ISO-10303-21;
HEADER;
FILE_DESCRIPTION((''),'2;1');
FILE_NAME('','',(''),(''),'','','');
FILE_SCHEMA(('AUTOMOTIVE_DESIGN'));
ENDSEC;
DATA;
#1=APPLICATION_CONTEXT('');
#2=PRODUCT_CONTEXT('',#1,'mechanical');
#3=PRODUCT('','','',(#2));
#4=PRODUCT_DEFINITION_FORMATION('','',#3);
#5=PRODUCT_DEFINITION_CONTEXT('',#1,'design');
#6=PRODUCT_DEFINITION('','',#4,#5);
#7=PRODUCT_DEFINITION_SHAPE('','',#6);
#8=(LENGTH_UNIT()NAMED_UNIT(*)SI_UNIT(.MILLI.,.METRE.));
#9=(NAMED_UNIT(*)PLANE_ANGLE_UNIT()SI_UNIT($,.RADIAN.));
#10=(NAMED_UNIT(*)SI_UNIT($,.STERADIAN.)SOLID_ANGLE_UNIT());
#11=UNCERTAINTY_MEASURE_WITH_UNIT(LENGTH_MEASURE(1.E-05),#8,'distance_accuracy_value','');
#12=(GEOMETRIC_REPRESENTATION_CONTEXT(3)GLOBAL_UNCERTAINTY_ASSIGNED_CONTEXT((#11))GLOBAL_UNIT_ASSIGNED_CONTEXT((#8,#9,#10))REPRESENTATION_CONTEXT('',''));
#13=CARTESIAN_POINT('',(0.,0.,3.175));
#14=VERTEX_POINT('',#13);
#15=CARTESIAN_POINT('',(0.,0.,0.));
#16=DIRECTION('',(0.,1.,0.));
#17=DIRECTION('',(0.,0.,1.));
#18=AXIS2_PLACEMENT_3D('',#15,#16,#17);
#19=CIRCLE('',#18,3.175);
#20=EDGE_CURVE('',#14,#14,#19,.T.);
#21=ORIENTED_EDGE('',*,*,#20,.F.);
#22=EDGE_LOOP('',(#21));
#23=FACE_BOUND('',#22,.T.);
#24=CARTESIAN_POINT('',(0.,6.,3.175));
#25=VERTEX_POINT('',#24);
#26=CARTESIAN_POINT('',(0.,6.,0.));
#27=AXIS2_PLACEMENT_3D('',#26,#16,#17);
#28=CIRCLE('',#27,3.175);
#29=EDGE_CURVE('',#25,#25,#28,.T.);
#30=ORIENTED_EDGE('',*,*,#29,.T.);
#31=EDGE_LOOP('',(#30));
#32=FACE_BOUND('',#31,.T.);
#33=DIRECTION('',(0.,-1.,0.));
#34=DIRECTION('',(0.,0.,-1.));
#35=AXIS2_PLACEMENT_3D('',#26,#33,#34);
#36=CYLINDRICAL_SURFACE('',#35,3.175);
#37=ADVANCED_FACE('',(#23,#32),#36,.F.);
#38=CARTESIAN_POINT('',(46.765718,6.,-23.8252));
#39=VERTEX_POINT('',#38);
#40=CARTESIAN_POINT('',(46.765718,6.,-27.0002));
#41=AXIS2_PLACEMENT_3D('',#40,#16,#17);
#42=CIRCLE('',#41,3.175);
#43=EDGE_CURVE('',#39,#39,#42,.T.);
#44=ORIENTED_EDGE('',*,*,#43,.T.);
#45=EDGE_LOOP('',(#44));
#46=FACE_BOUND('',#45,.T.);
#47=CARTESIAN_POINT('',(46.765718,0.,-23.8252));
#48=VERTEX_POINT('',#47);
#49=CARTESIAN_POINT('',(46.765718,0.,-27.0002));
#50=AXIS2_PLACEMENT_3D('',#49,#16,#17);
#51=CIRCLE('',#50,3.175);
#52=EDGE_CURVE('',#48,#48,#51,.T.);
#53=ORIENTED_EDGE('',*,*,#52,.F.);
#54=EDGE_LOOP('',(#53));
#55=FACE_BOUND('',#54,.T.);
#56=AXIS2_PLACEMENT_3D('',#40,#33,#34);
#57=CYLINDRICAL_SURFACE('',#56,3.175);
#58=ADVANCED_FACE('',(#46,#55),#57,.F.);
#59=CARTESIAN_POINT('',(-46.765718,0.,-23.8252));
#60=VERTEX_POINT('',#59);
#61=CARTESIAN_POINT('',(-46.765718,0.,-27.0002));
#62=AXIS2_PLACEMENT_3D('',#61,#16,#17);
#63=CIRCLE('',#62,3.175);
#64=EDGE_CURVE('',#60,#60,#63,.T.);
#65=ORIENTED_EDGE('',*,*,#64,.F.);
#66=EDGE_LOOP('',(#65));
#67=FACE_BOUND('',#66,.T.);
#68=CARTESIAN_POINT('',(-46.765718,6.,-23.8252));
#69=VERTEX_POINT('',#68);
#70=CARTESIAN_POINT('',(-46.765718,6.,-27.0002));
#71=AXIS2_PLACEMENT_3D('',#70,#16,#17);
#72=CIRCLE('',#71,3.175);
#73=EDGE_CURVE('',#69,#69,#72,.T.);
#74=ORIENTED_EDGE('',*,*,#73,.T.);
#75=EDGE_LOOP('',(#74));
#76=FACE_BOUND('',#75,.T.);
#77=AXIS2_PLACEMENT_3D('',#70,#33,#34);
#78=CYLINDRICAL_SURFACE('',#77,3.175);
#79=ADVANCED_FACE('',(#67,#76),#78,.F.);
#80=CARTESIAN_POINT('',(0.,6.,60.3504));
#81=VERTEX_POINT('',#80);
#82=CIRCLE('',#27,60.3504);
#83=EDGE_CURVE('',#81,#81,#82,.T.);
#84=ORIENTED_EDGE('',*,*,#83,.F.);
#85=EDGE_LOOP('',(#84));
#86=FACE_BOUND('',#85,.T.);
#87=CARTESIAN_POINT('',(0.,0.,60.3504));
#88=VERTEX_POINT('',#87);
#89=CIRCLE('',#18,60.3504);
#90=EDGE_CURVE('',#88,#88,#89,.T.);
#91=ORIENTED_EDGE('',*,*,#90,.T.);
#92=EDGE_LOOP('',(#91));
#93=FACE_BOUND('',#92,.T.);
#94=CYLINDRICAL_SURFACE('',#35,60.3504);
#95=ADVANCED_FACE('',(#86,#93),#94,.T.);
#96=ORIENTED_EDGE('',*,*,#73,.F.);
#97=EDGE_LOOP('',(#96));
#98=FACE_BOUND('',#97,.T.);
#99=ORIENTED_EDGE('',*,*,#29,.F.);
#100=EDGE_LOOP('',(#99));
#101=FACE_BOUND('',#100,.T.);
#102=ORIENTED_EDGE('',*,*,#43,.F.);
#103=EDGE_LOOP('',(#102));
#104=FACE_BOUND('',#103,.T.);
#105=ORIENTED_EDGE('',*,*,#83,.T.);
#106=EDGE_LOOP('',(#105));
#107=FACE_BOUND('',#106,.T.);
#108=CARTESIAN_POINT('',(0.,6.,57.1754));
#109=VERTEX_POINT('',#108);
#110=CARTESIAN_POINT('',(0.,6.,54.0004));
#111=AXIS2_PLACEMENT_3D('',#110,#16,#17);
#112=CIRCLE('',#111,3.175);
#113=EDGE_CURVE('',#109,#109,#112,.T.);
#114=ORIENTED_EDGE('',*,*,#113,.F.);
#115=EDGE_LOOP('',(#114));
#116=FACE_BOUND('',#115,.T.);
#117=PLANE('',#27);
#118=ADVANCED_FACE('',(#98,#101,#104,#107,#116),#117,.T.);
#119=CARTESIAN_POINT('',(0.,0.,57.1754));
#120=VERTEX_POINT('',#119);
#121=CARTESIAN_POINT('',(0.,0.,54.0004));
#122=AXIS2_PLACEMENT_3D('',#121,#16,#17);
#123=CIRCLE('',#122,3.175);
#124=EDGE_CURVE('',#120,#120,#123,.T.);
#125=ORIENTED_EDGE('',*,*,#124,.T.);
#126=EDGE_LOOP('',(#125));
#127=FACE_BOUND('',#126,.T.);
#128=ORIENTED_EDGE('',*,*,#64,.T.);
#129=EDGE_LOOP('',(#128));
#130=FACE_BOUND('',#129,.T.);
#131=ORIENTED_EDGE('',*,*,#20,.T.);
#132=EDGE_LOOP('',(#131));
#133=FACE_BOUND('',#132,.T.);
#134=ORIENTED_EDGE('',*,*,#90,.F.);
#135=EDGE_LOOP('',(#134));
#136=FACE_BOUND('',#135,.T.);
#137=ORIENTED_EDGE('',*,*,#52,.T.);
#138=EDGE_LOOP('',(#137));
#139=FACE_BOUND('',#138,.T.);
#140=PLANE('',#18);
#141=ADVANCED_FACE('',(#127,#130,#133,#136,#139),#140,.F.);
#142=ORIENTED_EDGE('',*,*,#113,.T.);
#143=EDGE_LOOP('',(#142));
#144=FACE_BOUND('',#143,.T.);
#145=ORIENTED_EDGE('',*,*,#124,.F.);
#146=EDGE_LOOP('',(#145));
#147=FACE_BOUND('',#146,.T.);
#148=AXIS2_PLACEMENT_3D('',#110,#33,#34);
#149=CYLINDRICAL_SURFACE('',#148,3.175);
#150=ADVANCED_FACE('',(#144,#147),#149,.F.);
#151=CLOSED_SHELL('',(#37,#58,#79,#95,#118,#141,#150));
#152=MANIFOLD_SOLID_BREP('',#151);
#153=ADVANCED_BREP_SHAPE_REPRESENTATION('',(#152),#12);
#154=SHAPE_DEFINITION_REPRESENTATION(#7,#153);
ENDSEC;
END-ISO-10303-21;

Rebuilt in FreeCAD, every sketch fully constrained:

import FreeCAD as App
import Part
import Sketcher

V = App.Vector
Q = App.Units.Quantity

doc = App.newDocument("Part")
body = doc.addObject("PartDesign::Body", "Body")

# Sketch on XZ plane
sketch1 = body.newObject("Sketcher::SketchObject", "Sketch")
sketch1.AttachmentSupport = (doc.getObject("XZ_Plane"), [""])
sketch1.MapMode = "FlatFace"
sketch1.addGeometry(Part.Circle(V(0, 0, 0), V(0, 0, 1), 60.3504), False)
sketch1.addGeometry(Part.Circle(V(0, 54.0004, 0), V(0, 0, 1), 3.175), False)
sketch1.addGeometry(Part.Circle(V(-46.765718, -27.0002, 0), V(0, 0, 1), 3.175), False)
sketch1.addGeometry(Part.Circle(V(0, 0, 0), V(0, 0, 1), 3.175), False)
sketch1.addGeometry(Part.Circle(V(46.765718, -27.0002, 0), V(0, 0, 1), 3.175), False)
sketch1.addConstraint(Sketcher.Constraint("Coincident", 0, 3, -1, 1))
sketch1.addConstraint(Sketcher.Constraint("Coincident", 3, 3, -1, 1))
sketch1.addConstraint(Sketcher.Constraint("Equal", 1, 2))
sketch1.addConstraint(Sketcher.Constraint("Equal", 2, 3))
sketch1.addConstraint(Sketcher.Constraint("Equal", 3, 4))
sketch1.addConstraint(Sketcher.Constraint("Symmetric", 2, 3, 4, 3, -2))
sketch1.addConstraint(Sketcher.Constraint("PointOnObject", 1, 3, -2))
sketch1.addConstraint(Sketcher.Constraint("Diameter", 1, Q("0.25 in")))
sketch1.addConstraint(Sketcher.Constraint("Diameter", 0, Q("4.752 in")))
sketch1.addConstraint(Sketcher.Constraint("DistanceY", -1, 1, 1, 3, Q("2.126 in")))
sketch1.addConstraint(Sketcher.Constraint("DistanceY", 2, 3, -1, 1, Q("1.063 in")))
sketch1.addConstraint(Sketcher.Constraint("DistanceX", 2, 3, -1, 1, 46.765718))
pad1 = body.newObject("PartDesign::Pad", "Pad")
pad1.Profile = sketch1
pad1.Length = 6
pad1.Reversed = True

doc.recompute()
